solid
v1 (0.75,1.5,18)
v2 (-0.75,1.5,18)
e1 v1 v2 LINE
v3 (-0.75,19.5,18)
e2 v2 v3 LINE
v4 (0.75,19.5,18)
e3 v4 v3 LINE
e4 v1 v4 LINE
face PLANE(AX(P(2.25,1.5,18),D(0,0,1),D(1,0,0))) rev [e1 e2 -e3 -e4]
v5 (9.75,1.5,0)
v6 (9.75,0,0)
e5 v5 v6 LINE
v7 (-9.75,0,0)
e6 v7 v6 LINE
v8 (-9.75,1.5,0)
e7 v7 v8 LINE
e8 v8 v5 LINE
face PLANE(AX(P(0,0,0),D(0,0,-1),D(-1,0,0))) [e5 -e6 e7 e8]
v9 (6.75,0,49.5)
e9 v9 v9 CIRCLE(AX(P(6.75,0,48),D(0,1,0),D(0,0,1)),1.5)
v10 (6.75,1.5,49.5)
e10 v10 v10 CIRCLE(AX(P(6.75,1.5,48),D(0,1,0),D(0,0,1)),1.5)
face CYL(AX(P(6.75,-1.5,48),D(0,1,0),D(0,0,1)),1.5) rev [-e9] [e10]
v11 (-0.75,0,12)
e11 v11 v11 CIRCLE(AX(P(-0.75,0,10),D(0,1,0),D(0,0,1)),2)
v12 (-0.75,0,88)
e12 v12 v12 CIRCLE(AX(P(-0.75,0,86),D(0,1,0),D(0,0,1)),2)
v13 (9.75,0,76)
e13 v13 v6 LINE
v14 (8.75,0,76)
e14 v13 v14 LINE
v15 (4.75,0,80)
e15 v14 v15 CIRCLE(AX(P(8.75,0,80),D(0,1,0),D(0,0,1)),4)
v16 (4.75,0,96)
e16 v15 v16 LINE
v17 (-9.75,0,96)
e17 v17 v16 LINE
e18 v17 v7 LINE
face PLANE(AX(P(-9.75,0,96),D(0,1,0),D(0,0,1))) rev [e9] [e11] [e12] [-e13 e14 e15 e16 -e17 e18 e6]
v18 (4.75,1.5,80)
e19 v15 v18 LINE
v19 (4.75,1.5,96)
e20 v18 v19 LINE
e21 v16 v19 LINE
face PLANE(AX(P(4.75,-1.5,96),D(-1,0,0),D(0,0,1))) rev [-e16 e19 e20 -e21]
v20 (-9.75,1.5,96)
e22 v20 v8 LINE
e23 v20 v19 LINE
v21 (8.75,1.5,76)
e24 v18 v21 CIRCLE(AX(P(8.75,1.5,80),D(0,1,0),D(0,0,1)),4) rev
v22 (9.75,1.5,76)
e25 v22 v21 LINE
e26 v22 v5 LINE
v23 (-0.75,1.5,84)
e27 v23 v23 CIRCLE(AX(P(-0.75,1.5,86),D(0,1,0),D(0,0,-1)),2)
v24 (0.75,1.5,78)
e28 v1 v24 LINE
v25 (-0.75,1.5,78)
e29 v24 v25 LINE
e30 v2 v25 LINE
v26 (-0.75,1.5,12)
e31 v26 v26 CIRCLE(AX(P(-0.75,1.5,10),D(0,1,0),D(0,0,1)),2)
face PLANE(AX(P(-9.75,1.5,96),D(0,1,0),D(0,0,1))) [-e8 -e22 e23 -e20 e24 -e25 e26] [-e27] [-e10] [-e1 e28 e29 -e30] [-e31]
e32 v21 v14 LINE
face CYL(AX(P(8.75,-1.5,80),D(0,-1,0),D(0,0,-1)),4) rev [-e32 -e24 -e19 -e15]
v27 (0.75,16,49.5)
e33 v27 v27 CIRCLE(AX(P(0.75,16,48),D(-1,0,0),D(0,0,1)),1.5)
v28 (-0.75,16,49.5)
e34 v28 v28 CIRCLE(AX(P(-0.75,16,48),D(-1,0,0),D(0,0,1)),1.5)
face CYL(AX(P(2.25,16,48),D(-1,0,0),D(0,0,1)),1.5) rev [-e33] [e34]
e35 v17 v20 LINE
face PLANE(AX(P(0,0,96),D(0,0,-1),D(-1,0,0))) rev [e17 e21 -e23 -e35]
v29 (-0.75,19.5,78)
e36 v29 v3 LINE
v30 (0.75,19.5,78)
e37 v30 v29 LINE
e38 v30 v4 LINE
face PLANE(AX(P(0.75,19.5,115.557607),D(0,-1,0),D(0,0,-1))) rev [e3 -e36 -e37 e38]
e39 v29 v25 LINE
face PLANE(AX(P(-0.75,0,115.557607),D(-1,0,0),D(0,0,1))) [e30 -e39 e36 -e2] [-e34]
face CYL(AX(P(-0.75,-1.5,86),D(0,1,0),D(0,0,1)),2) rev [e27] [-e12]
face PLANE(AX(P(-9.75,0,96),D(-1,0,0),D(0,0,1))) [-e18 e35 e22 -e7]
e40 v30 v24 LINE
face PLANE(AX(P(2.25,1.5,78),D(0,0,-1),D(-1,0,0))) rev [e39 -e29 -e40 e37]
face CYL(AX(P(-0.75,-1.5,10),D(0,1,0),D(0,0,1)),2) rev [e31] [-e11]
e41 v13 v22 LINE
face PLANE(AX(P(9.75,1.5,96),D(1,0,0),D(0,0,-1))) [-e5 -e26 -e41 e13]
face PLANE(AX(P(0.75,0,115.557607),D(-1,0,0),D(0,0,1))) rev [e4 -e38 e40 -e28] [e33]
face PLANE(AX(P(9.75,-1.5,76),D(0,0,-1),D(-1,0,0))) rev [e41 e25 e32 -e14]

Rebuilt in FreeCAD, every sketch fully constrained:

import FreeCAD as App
import Part
import Sketcher
from FreeCAD import Vector


def edges_at(feature, points):
    """Names of the edges that pass closest to the given points."""
    edges = feature.Shape.Edges
    near = lambda p: min(range(len(edges)), key=lambda i: edges[i].distToShape(Part.Vertex(*p))[0])
    return sorted({f"Edge{near(p) + 1}" for p in points})


def add_polygon(sketch, points):
    """Adds a closed chain of lines whose ends are joined by coincident constraints."""
    first, n = sketch.GeometryCount, len(points)
    for a, b in zip(points, points[1:] + points[:1]):
        sketch.addGeometry(Part.LineSegment(App.Vector(*a, 0), App.Vector(*b, 0)), False)
    for i in range(n):
        sketch.addConstraint(Sketcher.Constraint("Coincident", first + i, 2, first + (i + 1) % n, 1))

doc = App.newDocument("Part")
body = doc.addObject("PartDesign::Body", "Body")

sketch1 = body.newObject("Sketcher::SketchObject", "Sketch")
sketch1.AttachmentSupport = (doc.getObject("XY_Plane"), [""])
sketch1.MapMode = "FlatFace"
add_polygon(sketch1, [(-9.75, 1.5), (-9.75, 0), (9.75, 0), (9.75, 1.5)])
sketch1.addConstraint([
    Sketcher.Constraint("Vertical", 0),
    Sketcher.Constraint("Horizontal", 1),
    Sketcher.Constraint("Vertical", 2),
    Sketcher.Constraint("Horizontal", 3),
    Sketcher.Constraint("Symmetric", 0, 2, 1, 2, -1, 1),
    Sketcher.Constraint("DistanceX", 1, 1, 1, 2, 19.5),
    Sketcher.Constraint("DistanceY", 0, 2, 0, 1, 1.5),
])
pad1 = body.newObject("PartDesign::Pad", "Pad")
pad1.Profile = sketch1
pad1.Length = 96

sketch2 = body.newObject("Sketcher::SketchObject", "Sketch001")
sketch2.AttachmentSupport = (doc.getObject("XY_Plane"), [""])
sketch2.MapMode = "FlatFace"
add_polygon(sketch2, [(0.75, 19.5), (0.75, 0), (-0.75, 0), (-0.75, 19.5)])
sketch2.addConstraint([
    Sketcher.Constraint("Vertical", 0),
    Sketcher.Constraint("Horizontal", 1),
    Sketcher.Constraint("Vertical", 2),
    Sketcher.Constraint("Horizontal", 3),
    Sketcher.Constraint("Symmetric", 0, 2, 1, 2, -1, 1),
    Sketcher.Constraint("DistanceX", 1, 2, 1, 1, 1.5),
    Sketcher.Constraint("DistanceY", 0, 2, 0, 1, 19.5),
])
pad2 = body.newObject("PartDesign::Pad", "Pad001")
pad2.Profile = sketch2
pad2.Length = 96

sketch3 = body.newObject("Sketcher::SketchObject", "Sketch002")
sketch3.AttachmentSupport = (doc.getObject("YZ_Plane"), [""])
sketch3.MapMode = "FlatFace"
sketch3.AttachmentOffset = App.Placement(Vector(0, 0, -0.75), App.Rotation())
sketch3.addGeometry(Part.Circle(Vector(16, 48, 0), Vector(0, 0, 1), 1.5), False)
add_polygon(sketch3, [(19.5, 0), (1.5, 0), (1.5, 18), (19.5, 18)])
add_polygon(sketch3, [(19.5, 78), (1.5, 78), (1.5, 96), (19.5, 96)])
sketch3.addConstraint([
    Sketcher.Constraint("Horizontal", 1),
    Sketcher.Constraint("Vertical", 2),
    Sketcher.Constraint("Horizontal", 3),
    Sketcher.Constraint("Vertical", 4),
    Sketcher.Constraint("Horizontal", 5),
    Sketcher.Constraint("Vertical", 6),
    Sketcher.Constraint("Horizontal", 7),
    Sketcher.Constraint("Vertical", 8),
    Sketcher.Constraint("PointOnObject", 1, 2, -1),
    Sketcher.Constraint("Vertical", 2, 2, 5, 2),
    Sketcher.Constraint("Vertical", 4, 2, 7, 2),
    Sketcher.Constraint("Equal", 7, 2),
    Sketcher.Constraint("Equal", 4, 6),
    Sketcher.Constraint("Diameter", 0, 3.0),
    Sketcher.Constraint("DistanceX", 1, 2, 1, 1, 18.0),
    Sketcher.Constraint("DistanceX", -1, 1, 0, 3, 16.0),
    Sketcher.Constraint("DistanceY", -1, 1, 0, 3, 48.0),
    Sketcher.Constraint("DistanceY", -1, 1, 5, 2, 78.0),
    Sketcher.Constraint("DistanceX", -1, 1, 1, 2, 1.5),
])
pocket1 = body.newObject("PartDesign::Pocket", "Pocket")
pocket1.Profile = sketch3
pocket1.Length = 3
pocket1.Reversed = True

sketch4 = body.newObject("Sketcher::SketchObject", "Sketch003")
sketch4.AttachmentSupport = (doc.getObject("XZ_Plane"), [""])
sketch4.MapMode = "FlatFace"
sketch4.AttachmentOffset = App.Placement(Vector(0, 0, -1.5), App.Rotation())
sketch4.addGeometry(Part.Circle(Vector(-0.75, 10, 0), Vector(0, 0, 1), 2), False)
sketch4.addGeometry(Part.Circle(Vector(-0.75, 86, 0), Vector(0, 0, 1), 2), False)
sketch4.addGeometry(Part.Circle(Vector(6.75, 48, 0), Vector(0, 0, 1), 1.5), False)
add_polygon(sketch4, [(4.75, 76), (4.75, 96), (9.75, 96), (9.75, 76)])
sketch4.addConstraint([
    Sketcher.Constraint("Vertical", 3),
    Sketcher.Constraint("Horizontal", 4),
    Sketcher.Constraint("Vertical", 5),
    Sketcher.Constraint("Horizontal", 6),
    Sketcher.Constraint("Equal", 0, 1),
    Sketcher.Constraint("Vertical", 0, 3, 1, 3),
    Sketcher.Constraint("Diameter", 0, 4.0),
    Sketcher.Constraint("Diameter", 2, 3.0),
    Sketcher.Constraint("DistanceX", 4, 1, 4, 2, 5.0),
    Sketcher.Constraint("DistanceY", 3, 1, 3, 2, 20.0),
    Sketcher.Constraint("DistanceY", -1, 1, 0, 3, 10.0),
    Sketcher.Constraint("DistanceY", -1, 1, 1, 3, 86.0),
    Sketcher.Constraint("DistanceY", -1, 1, 2, 3, 48.0),
    Sketcher.Constraint("DistanceY", -1, 1, 3, 2, 96.0),
    Sketcher.Constraint("DistanceX", 3, 2, 2, 3, 2.0),
    Sketcher.Constraint("DistanceX", 0, 3, 2, 3, 7.5),
    Sketcher.Constraint("DistanceX", 0, 3, -1, 1, 0.75),
])
pocket2 = body.newObject("PartDesign::Pocket", "Pocket001")
pocket2.Profile = sketch4
pocket2.Length = 3
pocket2.Reversed = True
doc.recompute()

fillet = body.newObject("PartDesign::Fillet", "Fillet")
fillet.Base = (pocket2, edges_at(pocket2, [(4.75, 0.75, 76)]))
fillet.Radius = 4

doc.recompute()
